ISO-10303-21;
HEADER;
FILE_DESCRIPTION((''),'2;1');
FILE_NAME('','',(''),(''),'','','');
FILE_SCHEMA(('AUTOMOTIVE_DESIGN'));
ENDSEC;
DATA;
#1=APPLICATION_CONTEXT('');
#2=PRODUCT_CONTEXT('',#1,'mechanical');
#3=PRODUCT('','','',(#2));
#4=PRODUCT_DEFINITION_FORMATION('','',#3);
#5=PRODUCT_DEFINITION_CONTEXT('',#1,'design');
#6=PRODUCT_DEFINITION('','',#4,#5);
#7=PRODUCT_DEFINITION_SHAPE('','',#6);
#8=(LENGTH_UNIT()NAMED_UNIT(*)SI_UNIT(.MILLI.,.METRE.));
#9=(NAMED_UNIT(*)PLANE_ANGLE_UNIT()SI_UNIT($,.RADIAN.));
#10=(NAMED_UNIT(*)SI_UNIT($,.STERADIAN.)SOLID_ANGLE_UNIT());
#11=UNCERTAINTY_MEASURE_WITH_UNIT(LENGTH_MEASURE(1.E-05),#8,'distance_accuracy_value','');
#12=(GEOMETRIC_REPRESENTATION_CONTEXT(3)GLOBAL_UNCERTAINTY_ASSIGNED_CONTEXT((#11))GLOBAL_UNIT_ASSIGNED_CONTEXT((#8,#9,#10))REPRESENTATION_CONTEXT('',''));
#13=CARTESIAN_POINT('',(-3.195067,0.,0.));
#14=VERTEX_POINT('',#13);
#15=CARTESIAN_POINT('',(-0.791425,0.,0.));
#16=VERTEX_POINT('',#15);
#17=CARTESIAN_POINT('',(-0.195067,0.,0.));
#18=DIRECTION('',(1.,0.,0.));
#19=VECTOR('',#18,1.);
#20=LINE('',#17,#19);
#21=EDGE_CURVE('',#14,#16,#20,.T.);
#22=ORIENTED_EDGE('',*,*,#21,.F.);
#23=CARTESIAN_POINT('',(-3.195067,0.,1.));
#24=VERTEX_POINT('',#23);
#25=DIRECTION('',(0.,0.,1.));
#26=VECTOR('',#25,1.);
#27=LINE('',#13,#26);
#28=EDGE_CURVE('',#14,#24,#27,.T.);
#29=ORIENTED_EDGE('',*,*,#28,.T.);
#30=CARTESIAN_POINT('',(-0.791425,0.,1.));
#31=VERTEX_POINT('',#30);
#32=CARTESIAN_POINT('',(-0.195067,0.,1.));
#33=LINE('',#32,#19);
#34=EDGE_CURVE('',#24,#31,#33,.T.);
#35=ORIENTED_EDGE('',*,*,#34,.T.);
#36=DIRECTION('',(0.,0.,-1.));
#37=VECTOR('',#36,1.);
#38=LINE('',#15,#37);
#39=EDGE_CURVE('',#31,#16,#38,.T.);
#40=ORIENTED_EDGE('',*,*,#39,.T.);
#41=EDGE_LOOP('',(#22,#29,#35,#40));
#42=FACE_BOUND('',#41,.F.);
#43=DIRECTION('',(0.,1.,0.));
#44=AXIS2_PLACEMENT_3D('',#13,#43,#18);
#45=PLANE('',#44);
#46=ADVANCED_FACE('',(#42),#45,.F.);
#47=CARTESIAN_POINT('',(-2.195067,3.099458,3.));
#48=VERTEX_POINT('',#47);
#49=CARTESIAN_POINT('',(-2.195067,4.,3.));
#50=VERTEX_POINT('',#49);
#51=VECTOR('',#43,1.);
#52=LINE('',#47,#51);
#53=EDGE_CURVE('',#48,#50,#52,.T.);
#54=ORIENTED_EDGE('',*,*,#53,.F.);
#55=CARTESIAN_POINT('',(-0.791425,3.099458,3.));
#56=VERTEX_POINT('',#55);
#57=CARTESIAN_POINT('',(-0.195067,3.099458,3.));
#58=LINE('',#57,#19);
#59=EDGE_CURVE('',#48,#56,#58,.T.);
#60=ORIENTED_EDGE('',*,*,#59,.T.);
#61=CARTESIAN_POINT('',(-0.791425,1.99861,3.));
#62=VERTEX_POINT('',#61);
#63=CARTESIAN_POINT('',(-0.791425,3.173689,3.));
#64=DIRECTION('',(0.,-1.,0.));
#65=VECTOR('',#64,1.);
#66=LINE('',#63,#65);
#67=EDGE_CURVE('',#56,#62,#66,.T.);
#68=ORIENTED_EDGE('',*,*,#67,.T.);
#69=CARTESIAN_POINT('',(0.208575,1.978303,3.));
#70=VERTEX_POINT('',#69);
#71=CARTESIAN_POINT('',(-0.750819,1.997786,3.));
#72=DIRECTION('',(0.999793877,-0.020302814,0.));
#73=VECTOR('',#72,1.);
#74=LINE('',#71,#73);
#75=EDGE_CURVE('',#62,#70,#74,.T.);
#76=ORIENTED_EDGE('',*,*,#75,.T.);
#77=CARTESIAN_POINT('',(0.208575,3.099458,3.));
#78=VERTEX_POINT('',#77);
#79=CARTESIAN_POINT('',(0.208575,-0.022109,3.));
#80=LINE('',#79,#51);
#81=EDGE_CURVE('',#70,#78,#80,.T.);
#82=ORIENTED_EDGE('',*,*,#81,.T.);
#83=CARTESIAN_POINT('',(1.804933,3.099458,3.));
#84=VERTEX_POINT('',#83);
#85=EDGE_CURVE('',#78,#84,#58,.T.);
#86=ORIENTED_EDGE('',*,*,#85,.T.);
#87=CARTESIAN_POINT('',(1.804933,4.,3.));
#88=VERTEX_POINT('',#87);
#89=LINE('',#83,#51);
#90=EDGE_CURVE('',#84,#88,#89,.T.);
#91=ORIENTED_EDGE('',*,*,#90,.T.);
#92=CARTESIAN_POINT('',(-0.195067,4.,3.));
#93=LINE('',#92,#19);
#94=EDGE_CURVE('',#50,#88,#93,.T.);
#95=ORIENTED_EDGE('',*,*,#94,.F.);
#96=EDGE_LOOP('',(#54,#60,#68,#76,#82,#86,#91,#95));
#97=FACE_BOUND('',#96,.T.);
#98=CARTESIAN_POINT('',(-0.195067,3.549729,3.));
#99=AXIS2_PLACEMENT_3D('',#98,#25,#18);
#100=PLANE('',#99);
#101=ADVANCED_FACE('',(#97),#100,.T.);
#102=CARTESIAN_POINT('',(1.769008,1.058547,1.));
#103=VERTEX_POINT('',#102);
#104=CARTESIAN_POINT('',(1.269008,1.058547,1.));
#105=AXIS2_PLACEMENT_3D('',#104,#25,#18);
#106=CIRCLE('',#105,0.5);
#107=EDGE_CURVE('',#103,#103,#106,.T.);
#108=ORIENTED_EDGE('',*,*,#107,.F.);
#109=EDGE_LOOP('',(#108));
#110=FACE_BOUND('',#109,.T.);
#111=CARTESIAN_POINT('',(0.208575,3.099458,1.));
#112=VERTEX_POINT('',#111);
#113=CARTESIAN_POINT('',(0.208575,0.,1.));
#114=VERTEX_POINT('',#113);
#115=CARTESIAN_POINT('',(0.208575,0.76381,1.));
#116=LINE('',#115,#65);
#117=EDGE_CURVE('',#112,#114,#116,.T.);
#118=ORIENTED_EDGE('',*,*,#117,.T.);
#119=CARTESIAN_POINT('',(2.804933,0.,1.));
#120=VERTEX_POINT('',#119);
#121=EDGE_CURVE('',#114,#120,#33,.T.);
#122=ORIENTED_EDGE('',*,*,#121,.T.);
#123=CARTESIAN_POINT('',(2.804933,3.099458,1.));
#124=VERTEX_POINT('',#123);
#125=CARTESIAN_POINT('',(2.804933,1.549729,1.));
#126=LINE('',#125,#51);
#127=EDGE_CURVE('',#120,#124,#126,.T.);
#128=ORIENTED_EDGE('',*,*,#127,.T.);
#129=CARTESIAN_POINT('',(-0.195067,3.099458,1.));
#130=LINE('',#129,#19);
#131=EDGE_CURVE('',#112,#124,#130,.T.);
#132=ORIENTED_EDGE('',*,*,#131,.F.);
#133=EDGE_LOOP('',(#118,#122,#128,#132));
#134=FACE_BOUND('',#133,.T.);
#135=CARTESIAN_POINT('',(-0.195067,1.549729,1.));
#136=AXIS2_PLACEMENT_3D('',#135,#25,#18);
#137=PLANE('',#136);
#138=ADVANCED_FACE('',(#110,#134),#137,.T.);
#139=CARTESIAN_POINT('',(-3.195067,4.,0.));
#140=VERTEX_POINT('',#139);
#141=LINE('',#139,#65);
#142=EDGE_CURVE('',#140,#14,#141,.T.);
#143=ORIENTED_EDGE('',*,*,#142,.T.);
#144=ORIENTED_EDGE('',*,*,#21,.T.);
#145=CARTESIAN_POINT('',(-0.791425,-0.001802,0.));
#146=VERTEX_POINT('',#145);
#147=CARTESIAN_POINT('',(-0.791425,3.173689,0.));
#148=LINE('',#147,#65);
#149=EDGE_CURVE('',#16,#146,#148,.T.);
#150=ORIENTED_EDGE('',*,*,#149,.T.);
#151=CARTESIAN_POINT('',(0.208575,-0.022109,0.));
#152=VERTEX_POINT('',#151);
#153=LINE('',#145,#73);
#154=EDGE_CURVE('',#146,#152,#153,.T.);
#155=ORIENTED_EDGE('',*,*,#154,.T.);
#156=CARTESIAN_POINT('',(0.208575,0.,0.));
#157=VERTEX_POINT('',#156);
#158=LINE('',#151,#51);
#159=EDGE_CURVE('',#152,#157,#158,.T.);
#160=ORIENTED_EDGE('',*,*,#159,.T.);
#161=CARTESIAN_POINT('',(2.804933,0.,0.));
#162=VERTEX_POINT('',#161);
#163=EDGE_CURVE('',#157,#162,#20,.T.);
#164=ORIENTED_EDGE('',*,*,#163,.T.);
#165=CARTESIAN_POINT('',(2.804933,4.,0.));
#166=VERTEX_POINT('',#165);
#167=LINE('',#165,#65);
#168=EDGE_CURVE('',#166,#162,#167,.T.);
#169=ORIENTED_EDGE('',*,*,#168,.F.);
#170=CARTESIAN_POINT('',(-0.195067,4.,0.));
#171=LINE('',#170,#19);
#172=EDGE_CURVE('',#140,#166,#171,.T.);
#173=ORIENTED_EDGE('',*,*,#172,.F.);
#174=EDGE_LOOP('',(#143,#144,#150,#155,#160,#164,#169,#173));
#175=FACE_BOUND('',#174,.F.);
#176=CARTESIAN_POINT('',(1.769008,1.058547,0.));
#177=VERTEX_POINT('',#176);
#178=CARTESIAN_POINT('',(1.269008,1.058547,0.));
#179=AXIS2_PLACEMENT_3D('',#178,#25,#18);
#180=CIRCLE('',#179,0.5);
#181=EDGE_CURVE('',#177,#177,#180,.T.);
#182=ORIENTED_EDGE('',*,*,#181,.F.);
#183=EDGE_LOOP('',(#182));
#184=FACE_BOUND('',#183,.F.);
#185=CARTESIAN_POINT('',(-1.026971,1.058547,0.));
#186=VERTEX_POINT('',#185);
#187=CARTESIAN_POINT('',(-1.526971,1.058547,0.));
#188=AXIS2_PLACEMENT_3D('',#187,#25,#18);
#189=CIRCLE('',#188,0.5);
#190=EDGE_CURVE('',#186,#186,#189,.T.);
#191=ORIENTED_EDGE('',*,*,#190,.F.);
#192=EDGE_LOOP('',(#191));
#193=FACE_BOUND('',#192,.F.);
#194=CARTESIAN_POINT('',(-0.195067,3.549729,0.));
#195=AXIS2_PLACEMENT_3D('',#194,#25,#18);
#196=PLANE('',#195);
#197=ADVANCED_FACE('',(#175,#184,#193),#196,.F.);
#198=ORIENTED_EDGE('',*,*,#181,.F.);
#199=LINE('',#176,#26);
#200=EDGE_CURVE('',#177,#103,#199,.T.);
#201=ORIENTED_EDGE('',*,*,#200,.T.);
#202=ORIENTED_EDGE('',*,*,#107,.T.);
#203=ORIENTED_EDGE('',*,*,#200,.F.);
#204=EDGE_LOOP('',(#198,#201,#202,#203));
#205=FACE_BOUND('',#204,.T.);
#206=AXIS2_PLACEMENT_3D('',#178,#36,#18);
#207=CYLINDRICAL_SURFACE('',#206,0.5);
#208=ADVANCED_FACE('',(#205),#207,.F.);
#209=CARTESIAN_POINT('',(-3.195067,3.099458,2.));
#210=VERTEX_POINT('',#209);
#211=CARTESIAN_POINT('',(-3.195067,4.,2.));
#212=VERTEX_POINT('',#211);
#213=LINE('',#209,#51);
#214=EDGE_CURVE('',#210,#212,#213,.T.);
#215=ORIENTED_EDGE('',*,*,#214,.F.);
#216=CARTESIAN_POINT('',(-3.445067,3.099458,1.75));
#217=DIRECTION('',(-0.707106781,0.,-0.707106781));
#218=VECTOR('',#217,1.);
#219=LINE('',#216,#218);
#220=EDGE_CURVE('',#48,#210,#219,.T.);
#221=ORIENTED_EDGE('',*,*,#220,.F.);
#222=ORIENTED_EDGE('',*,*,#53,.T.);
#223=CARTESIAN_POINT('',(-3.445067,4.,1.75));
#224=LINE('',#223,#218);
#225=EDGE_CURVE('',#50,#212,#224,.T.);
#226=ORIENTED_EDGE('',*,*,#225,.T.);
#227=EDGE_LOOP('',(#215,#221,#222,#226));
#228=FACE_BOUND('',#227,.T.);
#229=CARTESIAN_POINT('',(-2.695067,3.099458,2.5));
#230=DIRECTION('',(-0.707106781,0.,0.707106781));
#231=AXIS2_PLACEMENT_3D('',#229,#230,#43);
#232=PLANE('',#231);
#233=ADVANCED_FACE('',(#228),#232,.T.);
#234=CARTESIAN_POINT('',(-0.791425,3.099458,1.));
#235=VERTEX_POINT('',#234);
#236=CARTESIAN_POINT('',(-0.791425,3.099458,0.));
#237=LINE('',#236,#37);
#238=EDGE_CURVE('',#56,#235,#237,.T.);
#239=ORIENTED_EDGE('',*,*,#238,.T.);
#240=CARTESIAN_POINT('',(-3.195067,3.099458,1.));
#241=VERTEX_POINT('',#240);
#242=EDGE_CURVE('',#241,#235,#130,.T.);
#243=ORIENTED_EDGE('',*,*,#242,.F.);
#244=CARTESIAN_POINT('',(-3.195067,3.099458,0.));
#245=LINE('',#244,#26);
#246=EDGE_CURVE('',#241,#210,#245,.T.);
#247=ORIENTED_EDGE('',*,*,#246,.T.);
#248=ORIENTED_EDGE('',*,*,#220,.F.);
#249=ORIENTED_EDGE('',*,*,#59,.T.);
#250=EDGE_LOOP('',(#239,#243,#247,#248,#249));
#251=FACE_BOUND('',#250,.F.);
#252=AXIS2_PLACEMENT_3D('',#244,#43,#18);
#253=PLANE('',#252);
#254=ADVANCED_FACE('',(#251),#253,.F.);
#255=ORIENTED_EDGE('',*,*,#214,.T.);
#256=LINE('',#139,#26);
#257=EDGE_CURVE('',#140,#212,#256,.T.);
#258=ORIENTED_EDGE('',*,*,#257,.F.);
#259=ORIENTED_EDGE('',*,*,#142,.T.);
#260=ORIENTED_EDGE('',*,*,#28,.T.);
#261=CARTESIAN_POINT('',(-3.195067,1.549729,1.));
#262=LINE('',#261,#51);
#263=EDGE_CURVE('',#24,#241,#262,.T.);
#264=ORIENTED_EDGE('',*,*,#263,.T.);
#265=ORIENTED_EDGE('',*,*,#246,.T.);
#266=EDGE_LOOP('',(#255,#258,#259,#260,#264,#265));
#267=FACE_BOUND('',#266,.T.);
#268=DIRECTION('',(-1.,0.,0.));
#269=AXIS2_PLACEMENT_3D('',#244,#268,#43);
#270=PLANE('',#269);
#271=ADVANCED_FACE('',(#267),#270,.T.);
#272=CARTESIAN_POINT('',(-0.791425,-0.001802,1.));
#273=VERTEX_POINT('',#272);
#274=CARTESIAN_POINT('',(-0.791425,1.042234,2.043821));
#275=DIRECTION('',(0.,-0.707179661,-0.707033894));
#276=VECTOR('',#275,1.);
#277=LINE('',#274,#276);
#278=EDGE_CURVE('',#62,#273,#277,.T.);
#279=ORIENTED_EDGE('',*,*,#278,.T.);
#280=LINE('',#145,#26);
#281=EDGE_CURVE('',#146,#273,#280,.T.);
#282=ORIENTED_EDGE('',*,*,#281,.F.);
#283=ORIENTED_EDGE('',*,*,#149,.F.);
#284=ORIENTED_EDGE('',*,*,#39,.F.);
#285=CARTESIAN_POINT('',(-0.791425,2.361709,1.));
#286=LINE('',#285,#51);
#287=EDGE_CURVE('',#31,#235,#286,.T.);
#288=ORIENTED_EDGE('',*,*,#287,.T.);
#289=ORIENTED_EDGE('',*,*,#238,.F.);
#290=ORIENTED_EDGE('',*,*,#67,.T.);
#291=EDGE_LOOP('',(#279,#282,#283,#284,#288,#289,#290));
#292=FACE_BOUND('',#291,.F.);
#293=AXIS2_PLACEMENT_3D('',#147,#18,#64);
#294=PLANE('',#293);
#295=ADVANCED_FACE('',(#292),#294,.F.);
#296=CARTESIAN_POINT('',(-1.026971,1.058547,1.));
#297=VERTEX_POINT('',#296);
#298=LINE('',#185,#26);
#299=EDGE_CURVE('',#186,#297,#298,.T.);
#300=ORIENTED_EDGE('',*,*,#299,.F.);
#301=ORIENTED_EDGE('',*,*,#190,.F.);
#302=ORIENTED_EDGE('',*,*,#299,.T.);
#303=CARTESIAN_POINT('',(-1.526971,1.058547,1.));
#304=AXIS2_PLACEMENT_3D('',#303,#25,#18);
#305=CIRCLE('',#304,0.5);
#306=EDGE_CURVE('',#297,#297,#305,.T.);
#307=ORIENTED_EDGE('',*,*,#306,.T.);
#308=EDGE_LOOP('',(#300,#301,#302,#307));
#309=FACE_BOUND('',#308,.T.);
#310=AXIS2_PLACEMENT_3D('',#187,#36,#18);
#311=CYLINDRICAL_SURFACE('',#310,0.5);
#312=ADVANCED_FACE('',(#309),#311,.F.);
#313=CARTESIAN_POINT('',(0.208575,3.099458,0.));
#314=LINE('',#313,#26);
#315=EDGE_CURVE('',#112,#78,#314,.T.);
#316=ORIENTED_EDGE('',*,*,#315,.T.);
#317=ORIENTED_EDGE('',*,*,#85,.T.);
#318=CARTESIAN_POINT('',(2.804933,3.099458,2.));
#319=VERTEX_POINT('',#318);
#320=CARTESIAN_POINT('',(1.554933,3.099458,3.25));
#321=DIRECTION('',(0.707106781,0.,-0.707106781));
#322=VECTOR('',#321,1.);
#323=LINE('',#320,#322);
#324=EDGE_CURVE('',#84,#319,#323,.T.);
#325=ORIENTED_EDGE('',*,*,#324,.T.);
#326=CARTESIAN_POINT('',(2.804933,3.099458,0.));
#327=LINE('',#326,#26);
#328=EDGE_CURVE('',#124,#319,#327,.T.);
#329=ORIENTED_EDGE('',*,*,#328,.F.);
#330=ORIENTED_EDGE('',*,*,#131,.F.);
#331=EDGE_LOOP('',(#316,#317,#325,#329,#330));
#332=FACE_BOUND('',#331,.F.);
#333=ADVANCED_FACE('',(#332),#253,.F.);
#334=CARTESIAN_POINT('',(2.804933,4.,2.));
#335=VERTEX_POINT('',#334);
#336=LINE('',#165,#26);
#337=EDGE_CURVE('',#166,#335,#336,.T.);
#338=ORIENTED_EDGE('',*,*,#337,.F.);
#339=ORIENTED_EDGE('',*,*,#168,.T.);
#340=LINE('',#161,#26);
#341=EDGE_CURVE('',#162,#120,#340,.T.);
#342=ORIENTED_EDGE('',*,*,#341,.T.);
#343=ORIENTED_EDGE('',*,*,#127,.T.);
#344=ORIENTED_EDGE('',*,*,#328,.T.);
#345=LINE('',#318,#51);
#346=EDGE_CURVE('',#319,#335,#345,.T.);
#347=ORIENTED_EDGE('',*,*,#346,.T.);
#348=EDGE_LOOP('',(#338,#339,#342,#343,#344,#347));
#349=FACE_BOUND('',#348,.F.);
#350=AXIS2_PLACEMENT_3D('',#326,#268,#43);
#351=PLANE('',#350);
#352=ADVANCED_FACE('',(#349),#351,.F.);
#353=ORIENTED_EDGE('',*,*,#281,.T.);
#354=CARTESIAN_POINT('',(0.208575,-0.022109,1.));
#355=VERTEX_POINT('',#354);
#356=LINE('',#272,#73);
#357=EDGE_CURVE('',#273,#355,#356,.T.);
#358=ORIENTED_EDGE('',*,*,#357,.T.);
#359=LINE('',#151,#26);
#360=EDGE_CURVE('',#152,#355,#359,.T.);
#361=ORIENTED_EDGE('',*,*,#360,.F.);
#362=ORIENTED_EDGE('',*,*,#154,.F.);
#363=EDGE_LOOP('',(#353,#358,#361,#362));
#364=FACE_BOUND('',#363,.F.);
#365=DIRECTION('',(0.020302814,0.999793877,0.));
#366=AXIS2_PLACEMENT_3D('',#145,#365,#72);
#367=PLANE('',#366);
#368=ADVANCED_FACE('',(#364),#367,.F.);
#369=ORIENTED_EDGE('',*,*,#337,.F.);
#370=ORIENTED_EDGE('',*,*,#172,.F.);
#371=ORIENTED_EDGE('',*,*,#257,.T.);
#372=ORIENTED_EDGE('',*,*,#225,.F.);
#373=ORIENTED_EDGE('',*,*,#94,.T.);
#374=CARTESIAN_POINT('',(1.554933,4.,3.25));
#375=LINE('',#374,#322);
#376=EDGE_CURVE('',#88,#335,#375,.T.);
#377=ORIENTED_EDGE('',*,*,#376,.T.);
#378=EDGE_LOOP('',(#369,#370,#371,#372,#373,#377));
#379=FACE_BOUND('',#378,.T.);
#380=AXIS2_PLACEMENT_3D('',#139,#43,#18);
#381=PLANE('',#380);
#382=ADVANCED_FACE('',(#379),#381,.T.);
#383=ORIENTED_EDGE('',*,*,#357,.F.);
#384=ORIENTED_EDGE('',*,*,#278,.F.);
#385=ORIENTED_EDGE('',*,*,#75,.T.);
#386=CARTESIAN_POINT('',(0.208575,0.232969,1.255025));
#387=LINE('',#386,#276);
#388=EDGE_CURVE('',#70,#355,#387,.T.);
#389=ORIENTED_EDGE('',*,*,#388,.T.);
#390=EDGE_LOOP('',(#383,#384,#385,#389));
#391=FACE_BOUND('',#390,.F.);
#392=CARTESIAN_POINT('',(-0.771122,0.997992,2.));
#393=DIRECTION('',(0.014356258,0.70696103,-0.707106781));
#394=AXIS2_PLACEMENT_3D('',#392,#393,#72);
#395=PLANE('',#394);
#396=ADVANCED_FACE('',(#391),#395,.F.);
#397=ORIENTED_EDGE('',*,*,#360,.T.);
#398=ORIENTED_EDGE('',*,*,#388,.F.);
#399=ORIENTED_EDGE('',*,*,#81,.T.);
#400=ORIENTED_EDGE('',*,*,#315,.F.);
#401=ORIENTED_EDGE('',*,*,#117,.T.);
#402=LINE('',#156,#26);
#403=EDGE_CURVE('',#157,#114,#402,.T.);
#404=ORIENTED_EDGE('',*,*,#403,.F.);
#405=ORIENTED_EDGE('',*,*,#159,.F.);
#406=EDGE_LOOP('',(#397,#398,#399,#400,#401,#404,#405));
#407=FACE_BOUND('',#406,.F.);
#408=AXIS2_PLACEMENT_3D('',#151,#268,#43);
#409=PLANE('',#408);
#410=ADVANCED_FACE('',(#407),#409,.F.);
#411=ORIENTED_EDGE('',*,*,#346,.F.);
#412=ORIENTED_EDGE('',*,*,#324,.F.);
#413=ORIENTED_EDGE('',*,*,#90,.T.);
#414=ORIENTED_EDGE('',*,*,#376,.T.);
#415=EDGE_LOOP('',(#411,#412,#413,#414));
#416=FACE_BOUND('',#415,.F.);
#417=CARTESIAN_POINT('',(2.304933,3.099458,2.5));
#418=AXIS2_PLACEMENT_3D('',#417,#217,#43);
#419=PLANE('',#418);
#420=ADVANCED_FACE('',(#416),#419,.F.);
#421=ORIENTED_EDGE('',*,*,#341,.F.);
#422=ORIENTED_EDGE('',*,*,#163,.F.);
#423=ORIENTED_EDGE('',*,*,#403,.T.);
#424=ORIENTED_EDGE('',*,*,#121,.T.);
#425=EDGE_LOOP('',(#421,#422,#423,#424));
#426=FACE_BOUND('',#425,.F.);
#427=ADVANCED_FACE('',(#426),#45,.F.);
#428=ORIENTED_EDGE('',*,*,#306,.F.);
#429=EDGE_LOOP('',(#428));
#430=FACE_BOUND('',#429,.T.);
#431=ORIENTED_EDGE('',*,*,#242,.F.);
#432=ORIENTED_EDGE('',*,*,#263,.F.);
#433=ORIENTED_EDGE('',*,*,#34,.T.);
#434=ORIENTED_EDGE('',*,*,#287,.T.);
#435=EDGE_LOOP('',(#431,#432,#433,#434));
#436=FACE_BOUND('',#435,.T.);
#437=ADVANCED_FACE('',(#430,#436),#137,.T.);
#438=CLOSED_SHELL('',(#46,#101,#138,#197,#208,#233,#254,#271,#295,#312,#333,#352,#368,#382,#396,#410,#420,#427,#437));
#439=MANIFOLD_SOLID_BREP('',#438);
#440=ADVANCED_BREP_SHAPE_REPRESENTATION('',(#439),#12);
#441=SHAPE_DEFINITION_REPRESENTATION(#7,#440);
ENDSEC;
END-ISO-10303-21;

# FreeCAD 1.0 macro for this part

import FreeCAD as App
import Part
import Sketcher
Q = App.Units.Quantity


def edges_at(feature, points):
    """Names of the edges that pass closest to the given points."""
    edges = feature.Shape.Edges
    near = lambda p: min(range(len(edges)), key=lambda i: edges[i].distToShape(Part.Vertex(*p))[0])
    return sorted({f"Edge{near(p) + 1}" for p in points})

doc = App.newDocument("Part")
params = doc.addObject("Spreadsheet::Sheet", "Params")
for row, (alias, value) in enumerate([
    ("sketch1_diameter", "1 mm"),
    ("sketch1_width", "6 mm"),
    ("pad1_length", "1 mm"),
    ("sketch2_width", "6 mm"),
    ("pad2_length", "3 mm"),
    ("pad3_length", "3 mm"),
    ("chamfer_size", "1 mm"),
    ("chamfer2_size", "1 mm"),
    ("chamfer3_size", "2 mm"),
], start=1):
    params.set(f"A{row}", alias)
    params.set(f"B{row}", "=" + value)
    params.setAlias(f"B{row}", alias)

body = doc.addObject("PartDesign::Body", "Body")

# Sketch on XY plane
sketch1 = body.newObject("Sketcher::SketchObject", "Sketch")
sketch1.AttachmentSupport = (doc.getObject("XY_Plane"), [""])
sketch1.MapMode = "FlatFace"
sketch1.addGeometry([
    Part.LineSegment(App.Vector(-3.195067, 3.099458, 0), App.Vector(-3.195067, 0, 0)),  # 0
    Part.LineSegment(App.Vector(-3.195067, 0, 0), App.Vector(2.804933, 0, 0)),  # 1
    Part.LineSegment(App.Vector(2.804933, 0, 0), App.Vector(2.804933, 3.099458, 0)),  # 2
    Part.LineSegment(App.Vector(2.804933, 3.099458, 0), App.Vector(-3.195067, 3.099458, 0)),  # 3
    Part.Circle(App.Vector(-1.526971, 1.058547, 0), App.Vector(0, 0, 1), 0.5),  # 4
    Part.Circle(App.Vector(1.269008, 1.058547, 0), App.Vector(0, 0, 1), 0.5),  # 5
], False)
sketch1.addConstraint([
    Sketcher.Constraint("Coincident", 0, 2, 1, 1),
    Sketcher.Constraint("Coincident", 1, 2, 2, 1),
    Sketcher.Constraint("Coincident", 2, 2, 3, 1),
    Sketcher.Constraint("Coincident", 3, 2, 0, 1),
    Sketcher.Constraint("Vertical", 0),
    Sketcher.Constraint("Horizontal", 1),
    Sketcher.Constraint("Vertical", 2),
    Sketcher.Constraint("Horizontal", 3),
    Sketcher.Constraint("Equal", 4, 5),
    Sketcher.Constraint("PointOnObject", 0, 2, -1),
    Sketcher.Constraint("Horizontal", 4, 3, 5, 3),
    Sketcher.Constraint("Diameter", 4, Q("1 mm")),
    Sketcher.Constraint("DistanceX", 1, 1, 1, 2, Q("6 mm")),
    Sketcher.Constraint("DistanceY", 0, 2, 0, 1, Q("3.099458 mm")),
    Sketcher.Constraint("DistanceX", 4, 3, -1, 1, Q("1.526971 mm")),
    Sketcher.Constraint("DistanceX", 4, 3, 5, 3, Q("2.795979 mm")),
    Sketcher.Constraint("DistanceY", 5, 3, 2, 2, Q("2.040911 mm")),
    Sketcher.Constraint("DistanceX", 0, 2, -1, 1, Q("3.195067 mm")),
])
sketch1.setExpression("Constraints[11]", "Params.sketch1_diameter")
sketch1.setExpression("Constraints[12]", "Params.sketch1_width")
pad1 = body.newObject("PartDesign::Pad", "Pad")
pad1.Profile = sketch1
pad1.setExpression("Length", "Params.pad1_length")

# Sketch on XY plane
sketch2 = body.newObject("Sketcher::SketchObject", "Sketch001")
sketch2.AttachmentSupport = (doc.getObject("XY_Plane"), [""])
sketch2.MapMode = "FlatFace"
sketch2.addGeometry([
    Part.LineSegment(App.Vector(-3.195067, 4, 0), App.Vector(-3.195067, 3.099458, 0)),
    Part.LineSegment(App.Vector(-3.195067, 3.099458, 0), App.Vector(2.804933, 3.099458, 0)),
    Part.LineSegment(App.Vector(2.804933, 3.099458, 0), App.Vector(2.804933, 4, 0)),
    Part.LineSegment(App.Vector(2.804933, 4, 0), App.Vector(-3.195067, 4, 0)),
], False)
sketch2.addConstraint([
    Sketcher.Constraint("Coincident", 0, 2, 1, 1),
    Sketcher.Constraint("Coincident", 1, 2, 2, 1),
    Sketcher.Constraint("Coincident", 2, 2, 3, 1),
    Sketcher.Constraint("Coincident", 3, 2, 0, 1),
    Sketcher.Constraint("Vertical", 0),
    Sketcher.Constraint("Horizontal", 1),
    Sketcher.Constraint("Vertical", 2),
    Sketcher.Constraint("Horizontal", 3),
    Sketcher.Constraint("DistanceX", 1, 1, 1, 2, Q("6 mm")),
    Sketcher.Constraint("DistanceY", -1, 1, 2, 2, Q("4 mm")),
    Sketcher.Constraint("DistanceY", 0, 2, 0, 1, Q("0.900542 mm")),
    Sketcher.Constraint("DistanceX", 0, 2, -1, 1, Q("3.195067 mm")),
])
sketch2.setExpression("Constraints[8]", "Params.sketch2_width")
pad2 = body.newObject("PartDesign::Pad", "Pad001")
pad2.Profile = sketch2
pad2.setExpression("Length", "Params.pad2_length")

# Sketch on XY plane
sketch3 = body.newObject("Sketcher::SketchObject", "Sketch002")
sketch3.AttachmentSupport = (doc.getObject("XY_Plane"), [""])
sketch3.MapMode = "FlatFace"
sketch3.addGeometry([
    Part.LineSegment(App.Vector(0.208575, 3.160667, 0), App.Vector(-0.791425, 3.173689, 0)),
    Part.LineSegment(App.Vector(-0.791425, 3.173689, 0), App.Vector(-0.791425, -0.001802, 0)),
    Part.LineSegment(App.Vector(-0.791425, -0.001802, 0), App.Vector(0.208575, -0.022109, 0)),
    Part.LineSegment(App.Vector(0.208575, -0.022109, 0), App.Vector(0.208575, 3.160667, 0)),
], False)
sketch3.addConstraint([
    Sketcher.Constraint("Coincident", 0, 2, 1, 1),
    Sketcher.Constraint("Coincident", 1, 2, 2, 1),
    Sketcher.Constraint("Coincident", 2, 2, 3, 1),
    Sketcher.Constraint("Coincident", 3, 2, 0, 1),
    Sketcher.Constraint("Vertical", 1),
    Sketcher.Constraint("Vertical", 3),
    Sketcher.Constraint("DistanceX", 1, 2, 2, 2, Q("1 mm")),
    Sketcher.Constraint("DistanceY", 1, 2, 1, 1, Q("3.175491 mm")),
    Sketcher.Constraint("DistanceY", 3, 1, 3, 2, Q("3.182776 mm")),
    Sketcher.Constraint("DistanceY", -1, 1, 0, 2, Q("3.173689 mm")),
    Sketcher.Constraint("DistanceY", 2, 2, -1, 1, Q("0.022109 mm")),
    Sketcher.Constraint("DistanceX", 0, 2, -1, 1, Q("0.791425 mm")),
])
pad3 = body.newObject("PartDesign::Pad", "Pad002")
pad3.Profile = sketch3
pad3.setExpression("Length", "Params.pad3_length")
doc.recompute()

chamfer = body.newObject("PartDesign::Chamfer", "Chamfer")
chamfer.Base = (pad3, edges_at(pad3, [(2.805, 3.55, 3)]))
chamfer.setExpression("Size", "Params.chamfer_size")
doc.recompute()

chamfer2 = body.newObject("PartDesign::Chamfer", "Chamfer001")
chamfer2.Base = (chamfer, edges_at(chamfer, [(-3.195, 3.55, 3)]))
chamfer2.setExpression("Size", "Params.chamfer2_size")
doc.recompute()

chamfer3 = body.newObject("PartDesign::Chamfer", "Chamfer002")
chamfer3.Base = (chamfer2, edges_at(chamfer2, [(-0.291, -0.012, 3)]))
chamfer3.setExpression("Size", "Params.chamfer3_size")

doc.recompute()
